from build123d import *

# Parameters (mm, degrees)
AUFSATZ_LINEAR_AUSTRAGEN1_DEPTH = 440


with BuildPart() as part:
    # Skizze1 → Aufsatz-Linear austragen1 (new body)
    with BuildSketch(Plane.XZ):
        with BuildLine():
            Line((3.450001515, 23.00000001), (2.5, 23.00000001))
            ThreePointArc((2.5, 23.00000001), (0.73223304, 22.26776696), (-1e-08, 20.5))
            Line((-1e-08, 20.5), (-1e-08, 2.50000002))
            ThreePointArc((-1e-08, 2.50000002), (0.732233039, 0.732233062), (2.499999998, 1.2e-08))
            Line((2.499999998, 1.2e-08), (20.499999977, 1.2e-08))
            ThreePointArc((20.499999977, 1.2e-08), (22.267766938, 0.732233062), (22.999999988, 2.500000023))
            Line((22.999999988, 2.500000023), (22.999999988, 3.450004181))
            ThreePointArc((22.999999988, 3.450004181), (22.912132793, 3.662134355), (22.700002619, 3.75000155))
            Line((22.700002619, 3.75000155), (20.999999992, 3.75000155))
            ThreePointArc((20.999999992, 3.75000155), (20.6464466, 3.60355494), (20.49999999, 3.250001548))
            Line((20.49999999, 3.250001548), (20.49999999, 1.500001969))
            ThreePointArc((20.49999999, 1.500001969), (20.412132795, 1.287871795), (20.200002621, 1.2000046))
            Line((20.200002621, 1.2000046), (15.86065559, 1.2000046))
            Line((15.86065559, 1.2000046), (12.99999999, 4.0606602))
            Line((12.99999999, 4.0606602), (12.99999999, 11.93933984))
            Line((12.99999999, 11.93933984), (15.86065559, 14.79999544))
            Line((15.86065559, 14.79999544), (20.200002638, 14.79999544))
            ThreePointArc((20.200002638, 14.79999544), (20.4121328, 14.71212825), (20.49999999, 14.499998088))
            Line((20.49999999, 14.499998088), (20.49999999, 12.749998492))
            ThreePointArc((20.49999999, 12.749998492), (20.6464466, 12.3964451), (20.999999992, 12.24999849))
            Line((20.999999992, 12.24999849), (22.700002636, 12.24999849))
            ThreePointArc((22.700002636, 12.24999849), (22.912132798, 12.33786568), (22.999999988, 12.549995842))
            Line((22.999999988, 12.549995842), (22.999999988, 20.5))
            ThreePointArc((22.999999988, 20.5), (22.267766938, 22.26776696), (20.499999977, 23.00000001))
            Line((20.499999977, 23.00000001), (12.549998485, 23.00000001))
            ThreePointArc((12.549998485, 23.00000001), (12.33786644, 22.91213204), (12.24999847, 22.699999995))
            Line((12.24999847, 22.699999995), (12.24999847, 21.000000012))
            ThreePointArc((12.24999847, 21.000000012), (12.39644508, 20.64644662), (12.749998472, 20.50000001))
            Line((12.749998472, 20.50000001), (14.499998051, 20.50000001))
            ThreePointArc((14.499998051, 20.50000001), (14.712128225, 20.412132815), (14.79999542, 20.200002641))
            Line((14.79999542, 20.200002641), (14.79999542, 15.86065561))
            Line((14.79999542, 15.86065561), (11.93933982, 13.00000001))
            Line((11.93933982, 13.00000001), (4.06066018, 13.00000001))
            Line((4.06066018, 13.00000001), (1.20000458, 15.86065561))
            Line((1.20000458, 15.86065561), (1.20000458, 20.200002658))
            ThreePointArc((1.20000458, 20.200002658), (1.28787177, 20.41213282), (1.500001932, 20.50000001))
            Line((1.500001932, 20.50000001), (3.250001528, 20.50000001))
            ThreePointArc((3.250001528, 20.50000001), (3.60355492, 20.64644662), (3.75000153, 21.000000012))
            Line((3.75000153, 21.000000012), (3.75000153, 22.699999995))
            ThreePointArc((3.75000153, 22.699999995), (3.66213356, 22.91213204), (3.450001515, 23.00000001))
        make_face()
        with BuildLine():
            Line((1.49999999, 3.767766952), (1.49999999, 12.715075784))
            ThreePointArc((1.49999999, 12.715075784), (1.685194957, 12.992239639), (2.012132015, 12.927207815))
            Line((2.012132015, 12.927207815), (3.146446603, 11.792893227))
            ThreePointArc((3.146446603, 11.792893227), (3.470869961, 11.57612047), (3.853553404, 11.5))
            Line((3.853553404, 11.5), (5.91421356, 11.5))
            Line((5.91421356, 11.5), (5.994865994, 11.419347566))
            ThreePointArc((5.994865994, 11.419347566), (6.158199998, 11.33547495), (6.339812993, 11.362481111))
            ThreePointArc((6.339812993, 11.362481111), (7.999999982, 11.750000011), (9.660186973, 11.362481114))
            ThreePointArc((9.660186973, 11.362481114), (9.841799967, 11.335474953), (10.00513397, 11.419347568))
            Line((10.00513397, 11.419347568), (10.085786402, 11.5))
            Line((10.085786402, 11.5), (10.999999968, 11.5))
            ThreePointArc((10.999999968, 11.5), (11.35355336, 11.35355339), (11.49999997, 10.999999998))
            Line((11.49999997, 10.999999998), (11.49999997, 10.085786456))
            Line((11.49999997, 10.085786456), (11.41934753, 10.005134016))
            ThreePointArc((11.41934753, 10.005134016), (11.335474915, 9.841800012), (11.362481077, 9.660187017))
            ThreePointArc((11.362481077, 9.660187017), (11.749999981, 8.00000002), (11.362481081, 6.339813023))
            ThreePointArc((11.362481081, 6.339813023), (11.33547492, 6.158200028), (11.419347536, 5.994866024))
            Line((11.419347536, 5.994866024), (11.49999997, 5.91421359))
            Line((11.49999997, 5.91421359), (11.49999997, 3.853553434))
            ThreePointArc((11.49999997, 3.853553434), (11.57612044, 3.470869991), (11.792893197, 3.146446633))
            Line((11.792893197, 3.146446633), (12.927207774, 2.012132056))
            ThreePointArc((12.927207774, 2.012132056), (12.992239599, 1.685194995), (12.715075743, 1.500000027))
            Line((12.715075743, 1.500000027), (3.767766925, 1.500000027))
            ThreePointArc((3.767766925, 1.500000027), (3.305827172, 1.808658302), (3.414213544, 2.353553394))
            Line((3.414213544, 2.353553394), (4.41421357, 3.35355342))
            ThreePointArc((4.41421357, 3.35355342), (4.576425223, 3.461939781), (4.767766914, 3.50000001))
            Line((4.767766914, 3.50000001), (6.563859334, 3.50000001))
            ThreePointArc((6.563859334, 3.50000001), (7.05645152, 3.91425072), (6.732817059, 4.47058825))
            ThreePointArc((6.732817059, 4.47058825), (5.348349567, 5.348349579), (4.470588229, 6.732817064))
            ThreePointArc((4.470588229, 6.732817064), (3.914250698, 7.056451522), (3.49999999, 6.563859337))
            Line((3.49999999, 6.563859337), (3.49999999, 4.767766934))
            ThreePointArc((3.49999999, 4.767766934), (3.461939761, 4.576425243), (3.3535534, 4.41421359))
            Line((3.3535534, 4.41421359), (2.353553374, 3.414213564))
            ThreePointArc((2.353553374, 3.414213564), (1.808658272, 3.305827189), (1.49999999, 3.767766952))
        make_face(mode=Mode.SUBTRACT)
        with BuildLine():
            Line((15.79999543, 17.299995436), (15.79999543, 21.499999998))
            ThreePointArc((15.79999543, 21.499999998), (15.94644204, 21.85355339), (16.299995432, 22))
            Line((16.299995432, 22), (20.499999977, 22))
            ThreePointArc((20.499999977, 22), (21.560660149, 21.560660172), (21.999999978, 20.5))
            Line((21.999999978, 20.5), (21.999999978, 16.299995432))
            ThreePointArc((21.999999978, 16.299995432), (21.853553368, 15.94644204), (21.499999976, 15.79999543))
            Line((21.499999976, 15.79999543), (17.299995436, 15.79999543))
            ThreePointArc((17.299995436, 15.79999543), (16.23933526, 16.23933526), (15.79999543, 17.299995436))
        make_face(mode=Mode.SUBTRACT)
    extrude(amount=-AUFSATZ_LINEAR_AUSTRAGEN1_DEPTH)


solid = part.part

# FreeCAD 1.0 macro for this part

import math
import FreeCAD as App
import Part
import Sketcher

doc = App.newDocument("Part")
body = doc.addObject("PartDesign::Body", "Body")

# Sketch on XZ plane
sketch1 = body.newObject("Sketcher::SketchObject", "Sketch")
sketch1.AttachmentSupport = (doc.getObject("XZ_Plane"), [""])
sketch1.MapMode = "FlatFace"
sketch1.addGeometry([
    Part.LineSegment(App.Vector(3.450002, 23, 0), App.Vector(2.5, 23, 0)),  # 0
    Part.ArcOfCircle(Part.Circle(App.Vector(2.5, 20.5, 0), App.Vector(0, 0, 1), 2.5), math.radians(90), math.radians(180)),  # 1
    Part.LineSegment(App.Vector(0, 20.5, 0), App.Vector(0, 2.5, 0)),  # 2
    Part.ArcOfCircle(Part.Circle(App.Vector(2.5, 2.5, 0), App.Vector(0, 0, 1), 2.5), math.radians(180), math.radians(270)),  # 3
    Part.LineSegment(App.Vector(2.5, 0, 0), App.Vector(20.5, 0, 0)),  # 4
    Part.ArcOfCircle(Part.Circle(App.Vector(20.5, 2.5, 0), App.Vector(0, 0, 1), 2.5), math.radians(-90), math.radians(0)),  # 5
    Part.LineSegment(App.Vector(23, 2.5, 0), App.Vector(23, 3.450004, 0)),  # 6
    Part.ArcOfCircle(Part.Circle(App.Vector(22.700003, 3.450004, 0), App.Vector(0, 0, 1), 0.299997), math.radians(0), math.radians(90)),  # 7
    Part.LineSegment(App.Vector(22.700003, 3.750002, 0), App.Vector(21, 3.750002, 0)),  # 8
    Part.ArcOfCircle(Part.Circle(App.Vector(21, 3.250002, 0), App.Vector(0, 0, 1), 0.5), math.radians(90), math.radians(180)),  # 9
    Part.LineSegment(App.Vector(20.5, 3.250002, 0), App.Vector(20.5, 1.500002, 0)),  # 10
    Part.ArcOfCircle(Part.Circle(App.Vector(20.200003, 1.500002, 0), App.Vector(0, 0, 1), 0.299997), math.radians(-90), math.radians(0)),  # 11
    Part.LineSegment(App.Vector(20.200003, 1.200005, 0), App.Vector(15.860656, 1.200005, 0)),  # 12
    Part.LineSegment(App.Vector(15.860656, 1.200005, 0), App.Vector(13, 4.06066, 0)),  # 13
    Part.LineSegment(App.Vector(13, 4.06066, 0), App.Vector(13, 11.93934, 0)),  # 14
    Part.LineSegment(App.Vector(13, 11.93934, 0), App.Vector(15.860656, 14.799995, 0)),  # 15
    Part.LineSegment(App.Vector(15.860656, 14.799995, 0), App.Vector(20.200003, 14.799995, 0)),  # 16
    Part.ArcOfCircle(Part.Circle(App.Vector(20.200003, 14.499998, 0), App.Vector(0, 0, 1), 0.299997), math.radians(0), math.radians(90)),  # 17
    Part.LineSegment(App.Vector(20.5, 14.499998, 0), App.Vector(20.5, 12.749998, 0)),  # 18
    Part.ArcOfCircle(Part.Circle(App.Vector(21, 12.749998, 0), App.Vector(0, 0, 1), 0.5), math.radians(180), math.radians(270)),  # 19
    Part.LineSegment(App.Vector(21, 12.249998, 0), App.Vector(22.700003, 12.249998, 0)),  # 20
    Part.ArcOfCircle(Part.Circle(App.Vector(22.700003, 12.549996, 0), App.Vector(0, 0, 1), 0.299997), math.radians(-90), math.radians(0)),  # 21
    Part.LineSegment(App.Vector(23, 12.549996, 0), App.Vector(23, 20.5, 0)),  # 22
    Part.ArcOfCircle(Part.Circle(App.Vector(20.5, 20.5, 0), App.Vector(0, 0, 1), 2.5), math.radians(0), math.radians(90)),  # 23
    Part.LineSegment(App.Vector(20.5, 23, 0), App.Vector(12.549998, 23, 0)),  # 24
    Part.ArcOfCircle(Part.Circle(App.Vector(12.549998, 22.7, 0), App.Vector(0, 0, 1), 0.3), math.radians(90), math.radians(180)),  # 25
    Part.LineSegment(App.Vector(12.249998, 22.7, 0), App.Vector(12.249998, 21, 0)),  # 26
    Part.ArcOfCircle(Part.Circle(App.Vector(12.749998, 21, 0), App.Vector(0, 0, 1), 0.5), math.radians(180), math.radians(270)),  # 27
    Part.LineSegment(App.Vector(12.749998, 20.5, 0), App.Vector(14.499998, 20.5, 0)),  # 28
    Part.ArcOfCircle(Part.Circle(App.Vector(14.499998, 20.200003, 0), App.Vector(0, 0, 1), 0.299997), math.radians(0), math.radians(90)),  # 29
    Part.LineSegment(App.Vector(14.799995, 20.200003, 0), App.Vector(14.799995, 15.860656, 0)),  # 30
    Part.LineSegment(App.Vector(14.799995, 15.860656, 0), App.Vector(11.93934, 13, 0)),  # 31
    Part.LineSegment(App.Vector(11.93934, 13, 0), App.Vector(4.06066, 13, 0)),  # 32
    Part.LineSegment(App.Vector(4.06066, 13, 0), App.Vector(1.200005, 15.860656, 0)),  # 33
    Part.LineSegment(App.Vector(1.200005, 15.860656, 0), App.Vector(1.200005, 20.200003, 0)),  # 34
    Part.ArcOfCircle(Part.Circle(App.Vector(1.500002, 20.200003, 0), App.Vector(0, 0, 1), 0.299997), math.radians(90), math.radians(180)),  # 35
    Part.LineSegment(App.Vector(1.500002, 20.5, 0), App.Vector(3.250002, 20.5, 0)),  # 36
    Part.ArcOfCircle(Part.Circle(App.Vector(3.250002, 21, 0), App.Vector(0, 0, 1), 0.5), math.radians(-90), math.radians(0)),  # 37
    Part.LineSegment(App.Vector(3.750002, 21, 0), App.Vector(3.750002, 22.7, 0)),  # 38
    Part.ArcOfCircle(Part.Circle(App.Vector(3.450002, 22.7, 0), App.Vector(0, 0, 1), 0.3), math.radians(0), math.radians(90)),  # 39
    Part.ArcOfCircle(Part.Circle(App.Vector(2, 3.767767, 0), App.Vector(0, 0, 1), 0.5), math.radians(180), math.radians(315)),  # 40
    Part.LineSegment(App.Vector(1.5, 3.767767, 0), App.Vector(1.5, 12.715076, 0)),  # 41
    Part.ArcOfCircle(Part.Circle(App.Vector(1.8, 12.715076, 0), App.Vector(0, 0, 1), 0.3), math.radians(45), math.radians(180)),  # 42
    Part.LineSegment(App.Vector(2.012132, 12.927208, 0), App.Vector(3.146447, 11.792893, 0)),  # 43
    Part.ArcOfCircle(Part.Circle(App.Vector(3.853553, 12.5, 0), App.Vector(0, 0, 1), 1), math.radians(-135), math.radians(-90)),  # 44
    Part.LineSegment(App.Vector(3.853553, 11.5, 0), App.Vector(5.914214, 11.5, 0)),  # 45
    Part.LineSegment(App.Vector(5.914214, 11.5, 0), App.Vector(5.994866, 11.419348, 0)),  # 46
    Part.ArcOfCircle(Part.Circle(App.Vector(6.206998, 11.63148, 0), App.Vector(0, 0, 1), 0.3), math.radians(-135), math.radians(-63.722665)),  # 47
    Part.ArcOfCircle(Part.Circle(App.Vector(8, 8, 0), App.Vector(0, 0, 1), 3.75), math.radians(63.722665), math.radians(116.277335)),  # 48
    Part.ArcOfCircle(Part.Circle(App.Vector(9.793002, 11.63148, 0), App.Vector(0, 0, 1), 0.3), math.radians(-116.277336), math.radians(-45)),  # 49
    Part.LineSegment(App.Vector(10.005134, 11.419348, 0), App.Vector(10.085786, 11.5, 0)),  # 50
    Part.LineSegment(App.Vector(10.085786, 11.5, 0), App.Vector(11, 11.5, 0)),  # 51
    Part.ArcOfCircle(Part.Circle(App.Vector(11, 11, 0), App.Vector(0, 0, 1), 0.5), math.radians(0), math.radians(90)),  # 52
    Part.LineSegment(App.Vector(11.5, 11, 0), App.Vector(11.5, 10.085786, 0)),  # 53
    Part.LineSegment(App.Vector(11.5, 10.085786, 0), App.Vector(11.419348, 10.005134, 0)),  # 54
    Part.ArcOfCircle(Part.Circle(App.Vector(11.63148, 9.793002, 0), App.Vector(0, 0, 1), 0.3), math.radians(135), math.radians(206.277336)),  # 55
    Part.ArcOfCircle(Part.Circle(App.Vector(8, 8, 0), App.Vector(0, 0, 1), 3.75), math.radians(-26.277335), math.radians(26.277336)),  # 56
    Part.ArcOfCircle(Part.Circle(App.Vector(11.63148, 6.206998, 0), App.Vector(0, 0, 1), 0.3), math.radians(153.722665), math.radians(225)),  # 57
    Part.LineSegment(App.Vector(11.419348, 5.994866, 0), App.Vector(11.5, 5.914214, 0)),  # 58
    Part.LineSegment(App.Vector(11.5, 5.914214, 0), App.Vector(11.5, 3.853553, 0)),  # 59
    Part.ArcOfCircle(Part.Circle(App.Vector(12.5, 3.853553, 0), App.Vector(0, 0, 1), 1), math.radians(-180), math.radians(-135)),  # 60
    Part.LineSegment(App.Vector(11.792893, 3.146447, 0), App.Vector(12.927208, 2.012132, 0)),  # 61
    Part.ArcOfCircle(Part.Circle(App.Vector(12.715076, 1.8, 0), App.Vector(0, 0, 1), 0.3), math.radians(-90), math.radians(45)),  # 62
    Part.LineSegment(App.Vector(12.715076, 1.5, 0), App.Vector(3.767767, 1.5, 0)),  # 63
    Part.ArcOfCircle(Part.Circle(App.Vector(3.767767, 2, 0), App.Vector(0, 0, 1), 0.5), math.radians(135), math.radians(270)),  # 64
    Part.LineSegment(App.Vector(3.414214, 2.353553, 0), App.Vector(4.414214, 3.353553, 0)),  # 65
    Part.ArcOfCircle(Part.Circle(App.Vector(4.767767, 3, 0), App.Vector(0, 0, 1), 0.5), math.radians(90), math.radians(135)),  # 66
    Part.LineSegment(App.Vector(4.767767, 3.5, 0), App.Vector(6.563859, 3.5, 0)),  # 67
    Part.ArcOfCircle(Part.Circle(App.Vector(6.563859, 4, 0), App.Vector(0, 0, 1), 0.5), math.radians(-90), math.radians(70.250077)),  # 68
    Part.ArcOfCircle(Part.Circle(App.Vector(8, 8, 0), App.Vector(0, 0, 1), 3.75), math.radians(-160.250077), math.radians(-109.749923)),  # 69
    Part.ArcOfCircle(Part.Circle(App.Vector(4, 6.563859, 0), App.Vector(0, 0, 1), 0.5), math.radians(19.749923), math.radians(180)),  # 70
    Part.LineSegment(App.Vector(3.5, 6.563859, 0), App.Vector(3.5, 4.767767, 0)),  # 71
    Part.ArcOfCircle(Part.Circle(App.Vector(3, 4.767767, 0), App.Vector(0, 0, 1), 0.5), math.radians(-45), math.radians(0)),  # 72
    Part.LineSegment(App.Vector(3.353553, 4.414214, 0), App.Vector(2.353553, 3.414214, 0)),  # 73
    Part.ArcOfCircle(Part.Circle(App.Vector(17.299995, 17.299995, 0), App.Vector(0, 0, 1), 1.5), math.radians(180), math.radians(270)),  # 74
    Part.LineSegment(App.Vector(15.799995, 17.299995, 0), App.Vector(15.799995, 21.5, 0)),  # 75
    Part.ArcOfCircle(Part.Circle(App.Vector(16.299995, 21.5, 0), App.Vector(0, 0, 1), 0.5), math.radians(90), math.radians(180)),  # 76
    Part.LineSegment(App.Vector(16.299995, 22, 0), App.Vector(20.5, 22, 0)),  # 77
    Part.ArcOfCircle(Part.Circle(App.Vector(20.5, 20.5, 0), App.Vector(0, 0, 1), 1.5), math.radians(0), math.radians(90)),  # 78
    Part.LineSegment(App.Vector(22, 20.5, 0), App.Vector(22, 16.299995, 0)),  # 79
    Part.ArcOfCircle(Part.Circle(App.Vector(21.5, 16.299995, 0), App.Vector(0, 0, 1), 0.5), math.radians(-90), math.radians(0)),  # 80
    Part.LineSegment(App.Vector(21.5, 15.799995, 0), App.Vector(17.299995, 15.799995, 0)),  # 81
], False)
sketch1.addConstraint([
    Sketcher.Constraint("Tangent", 0, 2, 1, 1),
    Sketcher.Constraint("Tangent", 1, 2, 2, 1),
    Sketcher.Constraint("Tangent", 2, 2, 3, 1),
    Sketcher.Constraint("Tangent", 3, 2, 4, 1),
    Sketcher.Constraint("Tangent", 4, 2, 5, 1),
    Sketcher.Constraint("Tangent", 5, 2, 6, 1),
    Sketcher.Constraint("Tangent", 6, 2, 7, 1),
    Sketcher.Constraint("Tangent", 7, 2, 8, 1),
    Sketcher.Constraint("Tangent", 8, 2, 9, 1),
    Sketcher.Constraint("Tangent", 9, 2, 10, 1),
    Sketcher.Constraint("Tangent", 10, 2, 11, 2),
    Sketcher.Constraint("Tangent", 11, 1, 12, 1),
    Sketcher.Constraint("Coincident", 12, 2, 13, 1),
    Sketcher.Constraint("Coincident", 13, 2, 14, 1),
    Sketcher.Constraint("Coincident", 14, 2, 15, 1),
    Sketcher.Constraint("Coincident", 15, 2, 16, 1),
    Sketcher.Constraint("Tangent", 16, 2, 17, 2),
    Sketcher.Constraint("Tangent", 17, 1, 18, 1),
    Sketcher.Constraint("Tangent", 18, 2, 19, 1),
    Sketcher.Constraint("Tangent", 19, 2, 20, 1),
    Sketcher.Constraint("Tangent", 20, 2, 21, 1),
    Sketcher.Constraint("Tangent", 21, 2, 22, 1),
    Sketcher.Constraint("Tangent", 22, 2, 23, 1),
    Sketcher.Constraint("Tangent", 23, 2, 24, 1),
    Sketcher.Constraint("Tangent", 24, 2, 25, 1),
    Sketcher.Constraint("Tangent", 25, 2, 26, 1),
    Sketcher.Constraint("Tangent", 26, 2, 27, 1),
    Sketcher.Constraint("Tangent", 27, 2, 28, 1),
    Sketcher.Constraint("Tangent", 28, 2, 29, 2),
    Sketcher.Constraint("Tangent", 29, 1, 30, 1),
    Sketcher.Constraint("Coincident", 30, 2, 31, 1),
    Sketcher.Constraint("Coincident", 31, 2, 32, 1),
    Sketcher.Constraint("Coincident", 32, 2, 33, 1),
    Sketcher.Constraint("Coincident", 33, 2, 34, 1),
    Sketcher.Constraint("Tangent", 34, 2, 35, 2),
    Sketcher.Constraint("Tangent", 35, 1, 36, 1),
    Sketcher.Constraint("Tangent", 36, 2, 37, 1),
    Sketcher.Constraint("Tangent", 37, 2, 38, 1),
    Sketcher.Constraint("Tangent", 38, 2, 39, 1),
    Sketcher.Constraint("Tangent", 39, 2, 0, 1),
    Sketcher.Constraint("Tangent", 40, 1, 41, 1),
    Sketcher.Constraint("Tangent", 41, 2, 42, 2),
    Sketcher.Constraint("Tangent", 42, 1, 43, 1),
    Sketcher.Constraint("Tangent", 43, 2, 44, 1),
    Sketcher.Constraint("Tangent", 44, 2, 45, 1),
    Sketcher.Constraint("Coincident", 45, 2, 46, 1),
    Sketcher.Constraint("Tangent", 46, 2, 47, 1),
    Sketcher.Constraint("Tangent", 47, 2, 48, 2),
    Sketcher.Constraint("Tangent", 48, 1, 49, 1),
    Sketcher.Constraint("Tangent", 49, 2, 50, 1),
    Sketcher.Constraint("Coincident", 50, 2, 51, 1),
    Sketcher.Constraint("Tangent", 51, 2, 52, 2),
    Sketcher.Constraint("Tangent", 52, 1, 53, 1),
    Sketcher.Constraint("Coincident", 53, 2, 54, 1),
    Sketcher.Constraint("Tangent", 54, 2, 55, 1),
    Sketcher.Constraint("Tangent", 55, 2, 56, 2),
    Sketcher.Constraint("Tangent", 56, 1, 57, 1),
    Sketcher.Constraint("Tangent", 57, 2, 58, 1),
    Sketcher.Constraint("Coincident", 58, 2, 59, 1),
    Sketcher.Constraint("Tangent", 59, 2, 60, 1),
    Sketcher.Constraint("Tangent", 60, 2, 61, 1),
    Sketcher.Constraint("Tangent", 61, 2, 62, 2),
    Sketcher.Constraint("Tangent", 62, 1, 63, 1),
    Sketcher.Constraint("Tangent", 63, 2, 64, 2),
    Sketcher.Constraint("Tangent", 64, 1, 65, 1),
    Sketcher.Constraint("Tangent", 65, 2, 66, 2),
    Sketcher.Constraint("Tangent", 66, 1, 67, 1),
    Sketcher.Constraint("Tangent", 67, 2, 68, 1),
    Sketcher.Constraint("Tangent", 68, 2, 69, 2),
    Sketcher.Constraint("Tangent", 69, 1, 70, 1),
    Sketcher.Constraint("Tangent", 70, 2, 71, 1),
    Sketcher.Constraint("Tangent", 71, 2, 72, 2),
    Sketcher.Constraint("Tangent", 72, 1, 73, 1),
    Sketcher.Constraint("Tangent", 73, 2, 40, 2),
    Sketcher.Constraint("Tangent", 74, 1, 75, 1),
    Sketcher.Constraint("Tangent", 75, 2, 76, 2),
    Sketcher.Constraint("Tangent", 76, 1, 77, 1),
    Sketcher.Constraint("Tangent", 77, 2, 78, 2),
    Sketcher.Constraint("Tangent", 78, 1, 79, 1),
    Sketcher.Constraint("Tangent", 79, 2, 80, 2),
    Sketcher.Constraint("Tangent", 80, 1, 81, 1),
    Sketcher.Constraint("Tangent", 81, 2, 74, 2),
    Sketcher.Constraint("Horizontal", 0),
    Sketcher.Constraint("Vertical", 2),
    Sketcher.Constraint("Horizontal", 4),
    Sketcher.Constraint("Vertical", 6),
    Sketcher.Constraint("Horizontal", 8),
    Sketcher.Constraint("Vertical", 10),
    Sketcher.Constraint("Horizontal", 12),
    Sketcher.Constraint("Vertical", 14),
    Sketcher.Constraint("Horizontal", 16),
    Sketcher.Constraint("Vertical", 18),
    Sketcher.Constraint("Horizontal", 20),
    Sketcher.Constraint("Vertical", 22),
    Sketcher.Constraint("Horizontal", 24),
    Sketcher.Constraint("Vertical", 26),
    Sketcher.Constraint("Horizontal", 28),
    Sketcher.Constraint("Vertical", 30),
    Sketcher.Constraint("Horizontal", 32),
    Sketcher.Constraint("Vertical", 34),
    Sketcher.Constraint("Horizontal", 36),
    Sketcher.Constraint("Vertical", 38),
    Sketcher.Constraint("Vertical", 41),
    Sketcher.Constraint("Horizontal", 45),
    Sketcher.Constraint("Horizontal", 51),
    Sketcher.Constraint("Vertical", 53),
    Sketcher.Constraint("Vertical", 59),
    Sketcher.Constraint("Horizontal", 63),
    Sketcher.Constraint("Horizontal", 67),
    Sketcher.Constraint("Vertical", 71),
    Sketcher.Constraint("Vertical", 75),
    Sketcher.Constraint("Horizontal", 77),
    Sketcher.Constraint("Vertical", 79),
    Sketcher.Constraint("Horizontal", 81),
    Sketcher.Constraint("Coincident", 56, 3, 48, 3),
    Sketcher.Constraint("Coincident", 69, 3, 48, 3),
    Sketcher.Constraint("Coincident", 78, 3, 23, 3),
    Sketcher.Constraint("Equal", 1, 3),
    Sketcher.Constraint("Equal", 3, 5),
    Sketcher.Constraint("Equal", 7, 11),
    Sketcher.Constraint("Equal", 11, 17),
    Sketcher.Constraint("Equal", 9, 19),
    Sketcher.Constraint("Equal", 17, 21),
    Sketcher.Constraint("Equal", 5, 23),
    Sketcher.Constraint("Equal", 19, 27),
    Sketcher.Constraint("Equal", 21, 29),
    Sketcher.Constraint("Equal", 29, 35),
    Sketcher.Constraint("Equal", 27, 37),
    Sketcher.Constraint("Equal", 25, 39),
    Sketcher.Constraint("Equal", 37, 40),
    Sketcher.Constraint("Equal", 39, 42),
    Sketcher.Constraint("Equal", 42, 47),
    Sketcher.Constraint("Equal", 47, 49),
    Sketcher.Constraint("Equal", 40, 52),
    Sketcher.Constraint("Equal", 49, 55),
    Sketcher.Constraint("Equal", 48, 56),
    Sketcher.Constraint("Equal", 55, 57),
    Sketcher.Constraint("Equal", 44, 60),
    Sketcher.Constraint("Equal", 57, 62),
    Sketcher.Constraint("Equal", 52, 64),
    Sketcher.Constraint("Equal", 64, 66),
    Sketcher.Constraint("Equal", 66, 68),
    Sketcher.Constraint("Equal", 56, 69),
    Sketcher.Constraint("Equal", 68, 70),
    Sketcher.Constraint("Equal", 70, 72),
    Sketcher.Constraint("Equal", 72, 76),
    Sketcher.Constraint("Equal", 74, 78),
    Sketcher.Constraint("Equal", 76, 80),
    Sketcher.Constraint("PointOnObject", 1, 2, -2),
    Sketcher.Constraint("PointOnObject", 3, 2, -1),
    Sketcher.Constraint("Perpendicular", 13, 15),
    Sketcher.Constraint("Parallel", 15, 31),
    Sketcher.Constraint("Perpendicular", 31, 33),
    Sketcher.Constraint("Parallel", 33, 43),
    Sketcher.Constraint("Parallel", 43, 46),
    Sketcher.Constraint("Perpendicular", 46, 50),
    Sketcher.Constraint("Parallel", 50, 54),
    Sketcher.Constraint("Perpendicular", 54, 58),
    Sketcher.Constraint("Parallel", 58, 61),
    Sketcher.Constraint("Perpendicular", 61, 65),
    Sketcher.Constraint("Parallel", 65, 73),
    Sketcher.Constraint("Horizontal", 1, 3, 23, 3),
    Sketcher.Constraint("Horizontal", 29, 3, 35, 3),
    Sketcher.Constraint("Horizontal", 47, 3, 49, 3),
    Sketcher.Constraint("Horizontal", 22, 2, 27, 2),
    Sketcher.Constraint("Horizontal", 30, 2, 33, 2),
    Sketcher.Constraint("Horizontal", 46, 2, 49, 2),
    Sketcher.Constraint("Horizontal", 45, 2, 50, 2),
    Sketcher.Constraint("Horizontal", 10, 2, 62, 1),
    Sketcher.Constraint("Vertical", 11, 3, 17, 3),
    Sketcher.Constraint("Vertical", 7, 3, 21, 3),
    Sketcher.Constraint("Vertical", 55, 3, 57, 3),
    Sketcher.Constraint("Vertical", 4, 2, 9, 2),
    Sketcher.Constraint("Vertical", 12, 2, 15, 2),
    Sketcher.Constraint("Vertical", 35, 1, 40, 1),
    Sketcher.Constraint("Vertical", 53, 2, 58, 2),
    Sketcher.Constraint("Equal", 28, 36),
    Sketcher.Constraint("Equal", 4, 2),
    Sketcher.Constraint("Equal", 36, 10),
    Sketcher.Constraint("Equal", 32, 14),
    Sketcher.Constraint("Equal", 10, 18),
    Sketcher.Constraint("Equal", 16, 30),
    Sketcher.Constraint("Equal", 63, 41),
    Sketcher.Constraint("Equal", 51, 53),
    Sketcher.Constraint("Equal", 45, 59),
    Sketcher.Constraint("Equal", 67, 71),
    Sketcher.Constraint("Equal", 81, 75),
    Sketcher.Constraint("Equal", 15, 31),
    Sketcher.Constraint("Equal", 50, 54),
    Sketcher.Constraint("Equal", 43, 61),
    Sketcher.Constraint("Radius", 44, 1.0),
    Sketcher.Constraint("Radius", 1, 2.5),
    Sketcher.Constraint("Radius", 9, 0.5),
    Sketcher.Constraint("Radius", 25, 0.3),
    Sketcher.Constraint("Radius", 74, 1.5),
    Sketcher.Constraint("DistanceX", 4, 1, 4, 2, 18.0),
    Sketcher.Constraint("Radius", 48, 3.75),
    Sketcher.Constraint("DistanceX", -1, 1, 40, 3, 2.0),
    Sketcher.Constraint("DistanceX", -1, 1, 48, 3, 8.0),
    Sketcher.Constraint("DistanceY", -1, 1, 48, 3, 8.0),
    Sketcher.Constraint("DistanceX", -1, 1, 52, 3, 11.0),
    Sketcher.Constraint("DistanceY", -1, 1, 66, 3, 3.0),
    Sketcher.Constraint("DistanceX", -1, 1, 13, 2, 13.0),
    Sketcher.Constraint("DistanceX", 0, 2, 0, 1, 0.950002),
    Sketcher.Constraint("DistanceX", 24, 2, 24, 1, 7.950001),
    Sketcher.Constraint("DistanceX", -1, 1, 47, 3, 6.206998),
    Sketcher.Constraint("Radius", 7, 0.299997),
    Sketcher.Constraint("DistanceX", 32, 2, 32, 1, 7.87868),
    Sketcher.Constraint("DistanceX", 45, 1, 45, 2, 2.06066),
    Sketcher.Constraint("DistanceX", 63, 2, 63, 1, 8.947309),
    Sketcher.Constraint("DistanceX", 77, 1, 77, 2, 4.200005),
])
pad1 = body.newObject("PartDesign::Pad", "Pad")
pad1.Profile = sketch1
pad1.Length = 440
pad1.Reversed = True

doc.recompute()
